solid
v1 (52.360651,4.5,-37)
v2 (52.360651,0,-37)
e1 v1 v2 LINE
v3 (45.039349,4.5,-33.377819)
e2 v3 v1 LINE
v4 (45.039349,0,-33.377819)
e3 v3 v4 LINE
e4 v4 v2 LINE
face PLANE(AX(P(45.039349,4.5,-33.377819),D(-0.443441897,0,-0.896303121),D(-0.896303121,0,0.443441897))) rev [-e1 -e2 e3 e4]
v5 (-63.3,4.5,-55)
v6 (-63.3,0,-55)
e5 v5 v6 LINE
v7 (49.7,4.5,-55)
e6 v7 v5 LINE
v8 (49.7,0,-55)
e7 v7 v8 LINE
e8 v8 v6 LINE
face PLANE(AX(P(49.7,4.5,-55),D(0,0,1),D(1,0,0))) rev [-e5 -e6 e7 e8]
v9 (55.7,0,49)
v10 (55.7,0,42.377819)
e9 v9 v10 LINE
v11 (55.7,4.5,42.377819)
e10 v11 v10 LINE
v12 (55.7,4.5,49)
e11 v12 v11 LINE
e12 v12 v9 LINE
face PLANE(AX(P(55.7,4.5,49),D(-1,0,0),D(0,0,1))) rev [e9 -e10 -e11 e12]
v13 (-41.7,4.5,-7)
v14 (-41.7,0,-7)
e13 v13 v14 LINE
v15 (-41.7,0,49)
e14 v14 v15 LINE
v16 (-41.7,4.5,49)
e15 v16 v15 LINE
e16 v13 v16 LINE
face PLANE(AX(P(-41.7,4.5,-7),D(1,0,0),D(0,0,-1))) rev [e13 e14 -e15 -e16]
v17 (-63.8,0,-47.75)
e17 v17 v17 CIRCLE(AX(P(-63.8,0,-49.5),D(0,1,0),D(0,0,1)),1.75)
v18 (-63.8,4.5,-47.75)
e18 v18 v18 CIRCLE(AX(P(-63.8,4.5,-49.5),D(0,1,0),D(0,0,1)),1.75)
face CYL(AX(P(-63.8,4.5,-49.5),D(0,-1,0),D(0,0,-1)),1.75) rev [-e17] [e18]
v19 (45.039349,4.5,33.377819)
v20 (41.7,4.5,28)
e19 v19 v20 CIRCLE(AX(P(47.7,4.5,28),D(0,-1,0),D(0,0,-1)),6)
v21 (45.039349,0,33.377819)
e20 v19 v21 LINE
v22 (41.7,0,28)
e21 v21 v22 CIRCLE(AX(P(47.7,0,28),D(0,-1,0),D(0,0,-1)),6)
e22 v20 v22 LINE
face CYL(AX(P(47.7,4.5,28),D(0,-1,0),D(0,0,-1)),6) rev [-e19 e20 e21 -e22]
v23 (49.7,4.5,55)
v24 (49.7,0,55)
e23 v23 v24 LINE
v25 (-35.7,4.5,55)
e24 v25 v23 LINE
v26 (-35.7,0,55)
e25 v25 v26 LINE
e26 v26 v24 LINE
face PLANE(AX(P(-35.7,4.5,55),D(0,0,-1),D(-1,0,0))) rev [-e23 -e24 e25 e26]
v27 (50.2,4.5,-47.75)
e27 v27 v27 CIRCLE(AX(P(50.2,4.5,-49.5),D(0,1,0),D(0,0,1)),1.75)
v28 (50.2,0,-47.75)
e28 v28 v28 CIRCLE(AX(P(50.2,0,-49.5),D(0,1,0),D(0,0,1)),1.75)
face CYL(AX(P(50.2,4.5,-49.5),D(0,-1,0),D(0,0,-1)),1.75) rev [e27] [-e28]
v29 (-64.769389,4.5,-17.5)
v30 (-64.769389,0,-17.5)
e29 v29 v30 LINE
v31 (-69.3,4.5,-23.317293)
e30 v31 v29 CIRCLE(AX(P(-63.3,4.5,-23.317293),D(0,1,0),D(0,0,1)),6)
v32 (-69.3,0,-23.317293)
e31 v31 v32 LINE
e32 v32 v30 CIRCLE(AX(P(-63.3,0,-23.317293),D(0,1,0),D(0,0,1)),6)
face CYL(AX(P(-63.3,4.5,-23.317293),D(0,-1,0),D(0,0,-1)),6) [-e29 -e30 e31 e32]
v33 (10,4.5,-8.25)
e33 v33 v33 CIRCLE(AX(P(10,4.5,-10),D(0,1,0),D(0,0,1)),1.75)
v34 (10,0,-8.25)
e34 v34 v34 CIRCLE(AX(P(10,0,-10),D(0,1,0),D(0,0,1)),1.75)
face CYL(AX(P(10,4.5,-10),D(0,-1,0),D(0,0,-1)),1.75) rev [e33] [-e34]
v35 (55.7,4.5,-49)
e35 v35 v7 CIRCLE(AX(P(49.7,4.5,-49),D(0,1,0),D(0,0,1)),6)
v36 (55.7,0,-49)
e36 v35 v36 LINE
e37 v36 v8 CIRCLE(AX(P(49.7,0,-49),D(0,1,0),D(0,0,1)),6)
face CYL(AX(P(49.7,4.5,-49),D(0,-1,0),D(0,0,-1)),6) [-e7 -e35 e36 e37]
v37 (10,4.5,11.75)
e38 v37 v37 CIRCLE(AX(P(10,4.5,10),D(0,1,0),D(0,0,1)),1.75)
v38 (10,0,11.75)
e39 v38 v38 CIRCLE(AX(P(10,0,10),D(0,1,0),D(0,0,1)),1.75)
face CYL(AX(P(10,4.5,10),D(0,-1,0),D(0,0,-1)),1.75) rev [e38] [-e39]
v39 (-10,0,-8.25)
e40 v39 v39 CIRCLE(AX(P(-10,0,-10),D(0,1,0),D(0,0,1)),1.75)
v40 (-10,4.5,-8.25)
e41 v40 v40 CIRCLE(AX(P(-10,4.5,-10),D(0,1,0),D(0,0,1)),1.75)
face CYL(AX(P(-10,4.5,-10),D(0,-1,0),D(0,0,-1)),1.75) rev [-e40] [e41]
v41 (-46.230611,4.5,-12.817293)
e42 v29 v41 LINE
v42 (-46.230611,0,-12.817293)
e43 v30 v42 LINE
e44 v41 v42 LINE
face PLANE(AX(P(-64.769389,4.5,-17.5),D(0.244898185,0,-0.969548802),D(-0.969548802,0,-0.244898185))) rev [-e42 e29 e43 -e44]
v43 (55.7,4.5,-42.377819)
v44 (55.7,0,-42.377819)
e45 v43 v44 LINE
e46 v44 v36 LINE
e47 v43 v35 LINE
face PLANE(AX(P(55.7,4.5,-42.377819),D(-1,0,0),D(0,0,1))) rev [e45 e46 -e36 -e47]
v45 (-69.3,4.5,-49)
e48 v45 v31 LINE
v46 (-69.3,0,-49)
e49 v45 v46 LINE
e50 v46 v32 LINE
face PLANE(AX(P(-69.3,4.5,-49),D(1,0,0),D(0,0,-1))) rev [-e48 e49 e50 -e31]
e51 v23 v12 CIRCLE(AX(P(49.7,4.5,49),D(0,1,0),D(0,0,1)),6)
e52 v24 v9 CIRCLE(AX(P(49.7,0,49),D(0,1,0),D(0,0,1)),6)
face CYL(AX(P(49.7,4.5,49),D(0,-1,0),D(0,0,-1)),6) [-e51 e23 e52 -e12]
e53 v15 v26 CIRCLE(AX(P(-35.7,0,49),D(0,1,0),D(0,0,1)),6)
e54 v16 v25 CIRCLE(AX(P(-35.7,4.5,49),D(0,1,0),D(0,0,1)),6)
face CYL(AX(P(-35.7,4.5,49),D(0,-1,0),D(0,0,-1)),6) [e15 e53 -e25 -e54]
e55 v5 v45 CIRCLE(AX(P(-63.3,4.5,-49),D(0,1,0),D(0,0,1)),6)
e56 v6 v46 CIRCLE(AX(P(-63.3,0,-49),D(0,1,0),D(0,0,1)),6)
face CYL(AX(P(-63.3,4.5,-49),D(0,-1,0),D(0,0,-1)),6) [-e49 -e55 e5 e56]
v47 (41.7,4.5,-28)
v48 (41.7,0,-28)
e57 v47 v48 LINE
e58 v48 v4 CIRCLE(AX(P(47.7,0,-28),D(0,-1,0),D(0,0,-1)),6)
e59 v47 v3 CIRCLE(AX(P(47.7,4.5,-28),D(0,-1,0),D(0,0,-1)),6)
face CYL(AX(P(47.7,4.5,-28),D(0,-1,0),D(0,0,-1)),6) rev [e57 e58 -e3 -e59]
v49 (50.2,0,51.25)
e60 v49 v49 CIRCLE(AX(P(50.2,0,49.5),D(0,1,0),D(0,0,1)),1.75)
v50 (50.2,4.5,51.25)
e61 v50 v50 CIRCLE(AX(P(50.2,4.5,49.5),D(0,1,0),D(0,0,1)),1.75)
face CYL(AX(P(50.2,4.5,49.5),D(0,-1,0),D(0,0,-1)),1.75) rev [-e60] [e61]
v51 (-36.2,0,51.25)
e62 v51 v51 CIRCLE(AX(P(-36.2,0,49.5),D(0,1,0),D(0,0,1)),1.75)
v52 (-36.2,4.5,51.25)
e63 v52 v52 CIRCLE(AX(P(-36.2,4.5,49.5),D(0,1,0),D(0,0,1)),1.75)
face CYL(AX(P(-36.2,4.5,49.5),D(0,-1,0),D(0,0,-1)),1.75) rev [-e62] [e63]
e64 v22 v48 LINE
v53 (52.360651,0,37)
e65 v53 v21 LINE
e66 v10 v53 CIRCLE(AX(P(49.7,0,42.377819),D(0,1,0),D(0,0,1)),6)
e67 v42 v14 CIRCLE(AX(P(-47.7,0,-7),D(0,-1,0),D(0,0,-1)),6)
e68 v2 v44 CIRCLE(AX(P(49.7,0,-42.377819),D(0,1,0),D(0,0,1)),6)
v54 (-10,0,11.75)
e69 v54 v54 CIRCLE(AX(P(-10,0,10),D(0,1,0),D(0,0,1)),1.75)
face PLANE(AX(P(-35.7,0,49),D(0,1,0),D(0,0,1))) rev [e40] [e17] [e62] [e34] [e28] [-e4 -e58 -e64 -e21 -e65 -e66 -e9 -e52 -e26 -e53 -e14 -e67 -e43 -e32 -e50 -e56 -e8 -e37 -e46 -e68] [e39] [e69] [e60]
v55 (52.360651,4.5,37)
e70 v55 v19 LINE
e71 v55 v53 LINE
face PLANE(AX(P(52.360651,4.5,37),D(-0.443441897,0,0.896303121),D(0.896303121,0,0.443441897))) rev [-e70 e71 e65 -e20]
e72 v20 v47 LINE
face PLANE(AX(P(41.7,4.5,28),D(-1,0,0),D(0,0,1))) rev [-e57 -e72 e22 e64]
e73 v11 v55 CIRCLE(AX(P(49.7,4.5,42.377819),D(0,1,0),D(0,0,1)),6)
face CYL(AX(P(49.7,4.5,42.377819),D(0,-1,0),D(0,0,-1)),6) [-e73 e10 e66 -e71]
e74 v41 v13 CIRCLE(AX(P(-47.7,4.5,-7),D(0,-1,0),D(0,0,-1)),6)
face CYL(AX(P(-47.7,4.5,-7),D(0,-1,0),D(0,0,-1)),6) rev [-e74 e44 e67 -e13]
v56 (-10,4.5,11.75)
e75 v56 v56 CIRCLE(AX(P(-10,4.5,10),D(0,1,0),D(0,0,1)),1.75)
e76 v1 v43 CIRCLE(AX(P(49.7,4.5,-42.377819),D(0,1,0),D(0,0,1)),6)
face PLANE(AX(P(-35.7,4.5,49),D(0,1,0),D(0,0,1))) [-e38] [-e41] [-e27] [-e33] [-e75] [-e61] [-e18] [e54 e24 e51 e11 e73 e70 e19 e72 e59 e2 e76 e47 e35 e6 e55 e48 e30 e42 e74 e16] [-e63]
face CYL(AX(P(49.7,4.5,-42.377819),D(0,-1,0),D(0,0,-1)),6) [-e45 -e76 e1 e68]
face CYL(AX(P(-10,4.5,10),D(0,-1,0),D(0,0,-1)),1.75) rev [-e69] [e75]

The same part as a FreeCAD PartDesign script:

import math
import FreeCAD as App
import Part
import Sketcher
from FreeCAD import Vector

doc = App.newDocument("Part")
params = doc.addObject("Spreadsheet::Sheet", "Params")
for row, (alias, value) in enumerate([
    ("sketch1_radius", "6 mm"),
    ("sketch1_diameter", "3.5 mm"),
    ("sketch1_width", "113 mm"),
    ("sketch1_height", "56 mm"),
    ("sketch1_width2", "85.4 mm"),
    ("pad1_length", "4.5 mm"),
], start=1):
    params.set(f"A{row}", alias)
    params.set(f"B{row}", "=" + value)
    params.setAlias(f"B{row}", alias)

body = doc.addObject("PartDesign::Body", "Body")

# Sketch on XZ plane
sketch1 = body.newObject("Sketcher::SketchObject", "Sketch")
sketch1.AttachmentSupport = (doc.getObject("XZ_Plane"), [""])
sketch1.MapMode = "FlatFace"
sketch1.addGeometry([
    Part.LineSegment(Vector(-35.7, 55, 0), Vector(49.7, 55, 0)),  # 0
    Part.ArcOfCircle(Part.Circle(Vector(49.7, 49, 0), Vector(0, 0, 1), 6), math.radians(0), math.radians(90)),  # 1
    Part.LineSegment(Vector(55.7, 49, 0), Vector(55.7, 42.4, 0)),  # 2
    Part.ArcOfCircle(Part.Circle(Vector(49.7, 42.4, 0), Vector(0, 0, 1), 6), math.radians(-64), math.radians(0)),  # 3
    Part.LineSegment(Vector(52.4, 37, 0), Vector(45, 33.4, 0)),  # 4
    Part.ArcOfCircle(Part.Circle(Vector(47.7, 28, 0), Vector(0, 0, 1), 6), math.radians(116), math.radians(180)),  # 5
    Part.LineSegment(Vector(41.7, 28, 0), Vector(41.7, -28, 0)),  # 6
    Part.ArcOfCircle(Part.Circle(Vector(47.7, -28, 0), Vector(0, 0, 1), 6), math.radians(-180), math.radians(-116)),  # 7
    Part.LineSegment(Vector(45, -33.4, 0), Vector(52.4, -37, 0)),  # 8
    Part.ArcOfCircle(Part.Circle(Vector(49.7, -42.4, 0), Vector(0, 0, 1), 6), math.radians(0), math.radians(64)),  # 9
    Part.LineSegment(Vector(55.7, -42.4, 0), Vector(55.7, -49, 0)),  # 10
    Part.ArcOfCircle(Part.Circle(Vector(49.7, -49, 0), Vector(0, 0, 1), 6), math.radians(-90), math.radians(0)),  # 11
    Part.LineSegment(Vector(49.7, -55, 0), Vector(-63.3, -55, 0)),  # 12
    Part.ArcOfCircle(Part.Circle(Vector(-63.3, -49, 0), Vector(0, 0, 1), 6), math.radians(180), math.radians(270)),  # 13
    Part.LineSegment(Vector(-69.3, -49, 0), Vector(-69.3, -23.3, 0)),  # 14
    Part.ArcOfCircle(Part.Circle(Vector(-63.3, -23.3, 0), Vector(0, 0, 1), 6), math.radians(104), math.radians(180)),  # 15
    Part.LineSegment(Vector(-64.8, -17.5, 0), Vector(-46.2, -12.8, 0)),  # 16
    Part.ArcOfCircle(Part.Circle(Vector(-47.7, -7, 0), Vector(0, 0, 1), 6), math.radians(-76), math.radians(0)),  # 17
    Part.LineSegment(Vector(-41.7, -7, 0), Vector(-41.7, 49, 0)),  # 18
    Part.ArcOfCircle(Part.Circle(Vector(-35.7, 49, 0), Vector(0, 0, 1), 6), math.radians(90), math.radians(180)),  # 19
    Part.Circle(Vector(-36.2, 49.5, 0), Vector(0, 0, 1), 1.8),  # 20
    Part.Circle(Vector(-10, 10, 0), Vector(0, 0, 1), 1.8),  # 21
    Part.Circle(Vector(50.2, 49.5, 0), Vector(0, 0, 1), 1.8),  # 22
    Part.Circle(Vector(10, 10, 0), Vector(0, 0, 1), 1.8),  # 23
    Part.Circle(Vector(-10, -10, 0), Vector(0, 0, 1), 1.8),  # 24
    Part.Circle(Vector(-63.8, -49.5, 0), Vector(0, 0, 1), 1.8),  # 25
    Part.Circle(Vector(10, -10, 0), Vector(0, 0, 1), 1.8),  # 26
    Part.Circle(Vector(50.2, -49.5, 0), Vector(0, 0, 1), 1.8),  # 27
], False)
sketch1.addConstraint([
    Sketcher.Constraint("Tangent", 0, 2, 1, 2),
    Sketcher.Constraint("Tangent", 1, 1, 2, 1),
    Sketcher.Constraint("Tangent", 2, 2, 3, 2),
    Sketcher.Constraint("Tangent", 3, 1, 4, 1),
    Sketcher.Constraint("Tangent", 4, 2, 5, 1),
    Sketcher.Constraint("Tangent", 5, 2, 6, 1),
    Sketcher.Constraint("Tangent", 6, 2, 7, 1),
    Sketcher.Constraint("Tangent", 7, 2, 8, 1),
    Sketcher.Constraint("Tangent", 8, 2, 9, 2),
    Sketcher.Constraint("Tangent", 9, 1, 10, 1),
    Sketcher.Constraint("Tangent", 10, 2, 11, 2),
    Sketcher.Constraint("Tangent", 11, 1, 12, 1),
    Sketcher.Constraint("Tangent", 12, 2, 13, 2),
    Sketcher.Constraint("Tangent", 13, 1, 14, 1),
    Sketcher.Constraint("Tangent", 14, 2, 15, 2),
    Sketcher.Constraint("Tangent", 15, 1, 16, 1),
    Sketcher.Constraint("Tangent", 16, 2, 17, 1),
    Sketcher.Constraint("Tangent", 17, 2, 18, 1),
    Sketcher.Constraint("Tangent", 18, 2, 19, 2),
    Sketcher.Constraint("Tangent", 19, 1, 0, 1),
    Sketcher.Constraint("Horizontal", 0),
    Sketcher.Constraint("Vertical", 2),
    Sketcher.Constraint("Vertical", 6),
    Sketcher.Constraint("Vertical", 10),
    Sketcher.Constraint("Horizontal", 12),
    Sketcher.Constraint("Vertical", 14),
    Sketcher.Constraint("Vertical", 18),
    Sketcher.Constraint("Equal", 1, 3),
    Sketcher.Constraint("Equal", 3, 5),
    Sketcher.Constraint("Equal", 5, 7),
    Sketcher.Constraint("Equal", 7, 9),
    Sketcher.Constraint("Equal", 9, 11),
    Sketcher.Constraint("Equal", 11, 13),
    Sketcher.Constraint("Equal", 13, 15),
    Sketcher.Constraint("Equal", 15, 17),
    Sketcher.Constraint("Equal", 17, 19),
    Sketcher.Constraint("Equal", 20, 21),
    Sketcher.Constraint("Equal", 21, 22),
    Sketcher.Constraint("Equal", 22, 23),
    Sketcher.Constraint("Equal", 23, 24),
    Sketcher.Constraint("Equal", 24, 25),
    Sketcher.Constraint("Equal", 25, 26),
    Sketcher.Constraint("Equal", 26, 27),
    Sketcher.Constraint("Symmetric", 23, 3, 24, 3, -1, 1),
    Sketcher.Constraint("Symmetric", 21, 3, 26, 3, -1, 1),
    Sketcher.Constraint("Symmetric", 21, 3, 23, 3, -2),
    Sketcher.Constraint("Symmetric", 3, 3, 9, 3, -1),
    Sketcher.Constraint("Symmetric", 22, 3, 27, 3, -1),
    Sketcher.Constraint("Horizontal", 20, 3, 22, 3),
    Sketcher.Constraint("Horizontal", 25, 3, 27, 3),
    Sketcher.Constraint("Vertical", 4, 2, 7, 2),
    Sketcher.Constraint("Equal", 2, 10),
    Sketcher.Constraint("Equal", 6, 18),
    Sketcher.Constraint("Radius", 1, 6.0),
    Sketcher.Constraint("Diameter", 20, 3.5),
    Sketcher.Constraint("DistanceX", 12, 2, 12, 1, 113.0),
    Sketcher.Constraint("DistanceY", 6, 2, 6, 1, 56.0),
    Sketcher.Constraint("DistanceX", 0, 1, 0, 2, 85.4),
    Sketcher.Constraint("DistanceY", -1, 1, 1, 3, 49.0),
    Sketcher.Constraint("DistanceX", 21, 3, -1, 1, 10.0),
    Sketcher.Constraint("DistanceY", -1, 1, 21, 3, 10.0),
    Sketcher.Constraint("DistanceY", -1, 1, 3, 1, 37.0),
    Sketcher.Constraint("DistanceX", 5, 3, 3, 3, 2.0),
    Sketcher.Constraint("DistanceX", -1, 1, 1, 3, 49.7),
    Sketcher.Constraint("DistanceX", 20, 3, -1, 1, 36.2),
    Sketcher.Constraint("DistanceY", -1, 1, 20, 3, 49.5),
    Sketcher.Constraint("DistanceX", -1, 1, 22, 3, 50.2),
    Sketcher.Constraint("DistanceX", 25, 3, -1, 1, 63.8),
    Sketcher.Constraint("DistanceY", 15, 1, -1, 1, 17.5),
])
sketch1.setExpression("Constraints[53]", "Params.sketch1_radius")
sketch1.setExpression("Constraints[54]", "Params.sketch1_diameter")
sketch1.setExpression("Constraints[55]", "Params.sketch1_width")
sketch1.setExpression("Constraints[56]", "Params.sketch1_height")
sketch1.setExpression("Constraints[57]", "Params.sketch1_width2")
pad1 = body.newObject("PartDesign::Pad", "Pad")
pad1.Profile = sketch1
pad1.setExpression("Length", "Params.pad1_length")
pad1.Reversed = True

doc.recompute()
